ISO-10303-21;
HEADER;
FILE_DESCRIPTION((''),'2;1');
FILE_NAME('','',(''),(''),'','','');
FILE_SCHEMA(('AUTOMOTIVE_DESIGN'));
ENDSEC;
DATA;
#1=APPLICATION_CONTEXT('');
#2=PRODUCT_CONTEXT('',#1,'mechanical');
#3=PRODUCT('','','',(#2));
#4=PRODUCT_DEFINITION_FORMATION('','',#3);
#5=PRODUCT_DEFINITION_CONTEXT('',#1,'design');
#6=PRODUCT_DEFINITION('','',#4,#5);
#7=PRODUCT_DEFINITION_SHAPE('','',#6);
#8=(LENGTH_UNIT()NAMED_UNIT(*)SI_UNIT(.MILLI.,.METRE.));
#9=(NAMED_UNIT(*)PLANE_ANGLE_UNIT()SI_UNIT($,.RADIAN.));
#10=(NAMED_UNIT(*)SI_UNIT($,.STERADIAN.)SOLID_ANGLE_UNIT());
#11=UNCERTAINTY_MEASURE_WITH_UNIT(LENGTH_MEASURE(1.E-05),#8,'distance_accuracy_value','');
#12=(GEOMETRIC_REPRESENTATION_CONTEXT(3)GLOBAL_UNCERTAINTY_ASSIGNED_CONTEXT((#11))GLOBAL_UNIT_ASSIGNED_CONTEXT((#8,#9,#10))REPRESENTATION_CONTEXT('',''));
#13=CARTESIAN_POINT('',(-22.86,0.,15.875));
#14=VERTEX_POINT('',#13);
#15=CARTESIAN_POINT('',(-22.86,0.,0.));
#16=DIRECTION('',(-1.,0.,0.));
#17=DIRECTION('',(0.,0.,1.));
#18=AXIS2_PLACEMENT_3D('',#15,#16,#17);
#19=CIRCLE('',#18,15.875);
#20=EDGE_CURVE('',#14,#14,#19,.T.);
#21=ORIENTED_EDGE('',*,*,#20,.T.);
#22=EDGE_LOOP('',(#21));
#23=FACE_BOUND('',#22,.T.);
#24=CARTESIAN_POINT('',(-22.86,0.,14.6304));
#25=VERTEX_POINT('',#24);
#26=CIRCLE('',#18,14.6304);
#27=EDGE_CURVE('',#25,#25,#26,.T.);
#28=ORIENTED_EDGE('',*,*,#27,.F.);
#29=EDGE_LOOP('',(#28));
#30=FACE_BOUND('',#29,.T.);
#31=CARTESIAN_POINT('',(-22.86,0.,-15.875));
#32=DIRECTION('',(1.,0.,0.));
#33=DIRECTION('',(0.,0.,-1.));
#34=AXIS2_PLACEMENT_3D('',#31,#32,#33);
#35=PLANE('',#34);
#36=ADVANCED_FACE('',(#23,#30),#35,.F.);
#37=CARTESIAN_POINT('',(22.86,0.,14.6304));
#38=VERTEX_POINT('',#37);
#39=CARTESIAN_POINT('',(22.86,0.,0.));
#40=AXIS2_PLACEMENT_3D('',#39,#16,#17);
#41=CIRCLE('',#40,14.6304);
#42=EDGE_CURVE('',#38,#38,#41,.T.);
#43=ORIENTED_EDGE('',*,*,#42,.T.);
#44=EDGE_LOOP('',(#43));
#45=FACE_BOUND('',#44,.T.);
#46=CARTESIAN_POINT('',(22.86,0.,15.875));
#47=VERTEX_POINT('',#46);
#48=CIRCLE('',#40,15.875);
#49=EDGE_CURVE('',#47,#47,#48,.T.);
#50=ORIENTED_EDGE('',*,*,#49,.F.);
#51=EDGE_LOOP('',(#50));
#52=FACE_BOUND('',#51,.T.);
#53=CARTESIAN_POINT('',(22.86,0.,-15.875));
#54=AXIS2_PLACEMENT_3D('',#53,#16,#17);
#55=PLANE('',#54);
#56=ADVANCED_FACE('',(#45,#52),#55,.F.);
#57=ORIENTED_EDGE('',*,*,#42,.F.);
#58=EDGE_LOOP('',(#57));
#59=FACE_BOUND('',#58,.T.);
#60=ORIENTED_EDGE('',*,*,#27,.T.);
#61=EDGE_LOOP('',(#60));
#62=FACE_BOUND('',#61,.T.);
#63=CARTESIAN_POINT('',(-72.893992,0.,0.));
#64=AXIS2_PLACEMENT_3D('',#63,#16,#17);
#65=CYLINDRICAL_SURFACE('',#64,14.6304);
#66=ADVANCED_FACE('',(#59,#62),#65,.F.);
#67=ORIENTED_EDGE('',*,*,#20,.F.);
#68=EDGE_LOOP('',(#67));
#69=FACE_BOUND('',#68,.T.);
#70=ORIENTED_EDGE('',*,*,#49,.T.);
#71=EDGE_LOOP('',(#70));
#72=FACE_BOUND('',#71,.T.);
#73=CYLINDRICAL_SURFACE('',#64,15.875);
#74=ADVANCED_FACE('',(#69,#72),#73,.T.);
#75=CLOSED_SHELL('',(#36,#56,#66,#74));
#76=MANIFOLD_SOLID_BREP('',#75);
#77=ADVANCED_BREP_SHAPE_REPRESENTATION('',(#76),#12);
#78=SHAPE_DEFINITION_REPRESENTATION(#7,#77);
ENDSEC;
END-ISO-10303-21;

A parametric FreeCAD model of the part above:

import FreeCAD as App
import Part
import Sketcher

V = App.Vector
Q = App.Units.Quantity


def add_polygon(sketch, points):
    """Adds a closed chain of lines whose ends are joined by coincident constraints."""
    first, n = sketch.GeometryCount, len(points)
    for a, b in zip(points, points[1:] + points[:1]):
        sketch.addGeometry(Part.LineSegment(App.Vector(*a, 0), App.Vector(*b, 0)), False)
    for i in range(n):
        sketch.addConstraint(Sketcher.Constraint("Coincident", first + i, 2, first + (i + 1) % n, 1))

doc = App.newDocument("Part")
params = doc.addObject("Spreadsheet::Sheet", "Params")
for row, (alias, value) in enumerate([
    ("sketch1_width", "1.8 in"),
    ("sketch1_height", "0.049 in"),
    ("revolution_angle", "360 deg"),
], start=1):
    params.set(f"A{row}", alias)
    params.set(f"B{row}", "=" + value)
    params.setAlias(f"B{row}", alias)

body = doc.addObject("PartDesign::Body", "Body")

# Sketch on XZ plane
sketch1 = doc.addObject("Sketcher::SketchObject", "Sketch")
body.addObject(sketch1)
sketch1.AttachmentSupport = (doc.XZ_Plane, [""])
sketch1.MapMode = "FlatFace"
add_polygon(sketch1, [(-22.9, -15.9), (-22.9, -14.6), (22.9, -14.6), (22.9, -15.9)])  # lines 0-3
sketch1.addConstraint([
    Sketcher.Constraint("Vertical", 0),
    Sketcher.Constraint("Horizontal", 1),
    Sketcher.Constraint("Vertical", 2),
    Sketcher.Constraint("Horizontal", 3),
    Sketcher.Constraint("DistanceX", 1, 1, 1, 2, Q("1.8 in")),
    Sketcher.Constraint("DistanceX", 0, 2, -1, 1, Q("0.9 in")),
    Sketcher.Constraint("DistanceY", 0, 1, 0, 2, Q("0.049 in")),
    Sketcher.Constraint("DistanceY", 0, 2, -1, 1, Q("0.576 in")),
])
sketch1.setExpression("Constraints[8]", "Params.sketch1_width")
sketch1.setExpression("Constraints[10]", "Params.sketch1_height")
revolution = doc.addObject("PartDesign::Revolution", "Revolution")
body.addObject(revolution)
revolution.Profile = sketch1
revolution.ReferenceAxis = (sketch1, ["H_Axis"])
revolution.setExpression("Angle", "Params.revolution_angle")

doc.recompute()
